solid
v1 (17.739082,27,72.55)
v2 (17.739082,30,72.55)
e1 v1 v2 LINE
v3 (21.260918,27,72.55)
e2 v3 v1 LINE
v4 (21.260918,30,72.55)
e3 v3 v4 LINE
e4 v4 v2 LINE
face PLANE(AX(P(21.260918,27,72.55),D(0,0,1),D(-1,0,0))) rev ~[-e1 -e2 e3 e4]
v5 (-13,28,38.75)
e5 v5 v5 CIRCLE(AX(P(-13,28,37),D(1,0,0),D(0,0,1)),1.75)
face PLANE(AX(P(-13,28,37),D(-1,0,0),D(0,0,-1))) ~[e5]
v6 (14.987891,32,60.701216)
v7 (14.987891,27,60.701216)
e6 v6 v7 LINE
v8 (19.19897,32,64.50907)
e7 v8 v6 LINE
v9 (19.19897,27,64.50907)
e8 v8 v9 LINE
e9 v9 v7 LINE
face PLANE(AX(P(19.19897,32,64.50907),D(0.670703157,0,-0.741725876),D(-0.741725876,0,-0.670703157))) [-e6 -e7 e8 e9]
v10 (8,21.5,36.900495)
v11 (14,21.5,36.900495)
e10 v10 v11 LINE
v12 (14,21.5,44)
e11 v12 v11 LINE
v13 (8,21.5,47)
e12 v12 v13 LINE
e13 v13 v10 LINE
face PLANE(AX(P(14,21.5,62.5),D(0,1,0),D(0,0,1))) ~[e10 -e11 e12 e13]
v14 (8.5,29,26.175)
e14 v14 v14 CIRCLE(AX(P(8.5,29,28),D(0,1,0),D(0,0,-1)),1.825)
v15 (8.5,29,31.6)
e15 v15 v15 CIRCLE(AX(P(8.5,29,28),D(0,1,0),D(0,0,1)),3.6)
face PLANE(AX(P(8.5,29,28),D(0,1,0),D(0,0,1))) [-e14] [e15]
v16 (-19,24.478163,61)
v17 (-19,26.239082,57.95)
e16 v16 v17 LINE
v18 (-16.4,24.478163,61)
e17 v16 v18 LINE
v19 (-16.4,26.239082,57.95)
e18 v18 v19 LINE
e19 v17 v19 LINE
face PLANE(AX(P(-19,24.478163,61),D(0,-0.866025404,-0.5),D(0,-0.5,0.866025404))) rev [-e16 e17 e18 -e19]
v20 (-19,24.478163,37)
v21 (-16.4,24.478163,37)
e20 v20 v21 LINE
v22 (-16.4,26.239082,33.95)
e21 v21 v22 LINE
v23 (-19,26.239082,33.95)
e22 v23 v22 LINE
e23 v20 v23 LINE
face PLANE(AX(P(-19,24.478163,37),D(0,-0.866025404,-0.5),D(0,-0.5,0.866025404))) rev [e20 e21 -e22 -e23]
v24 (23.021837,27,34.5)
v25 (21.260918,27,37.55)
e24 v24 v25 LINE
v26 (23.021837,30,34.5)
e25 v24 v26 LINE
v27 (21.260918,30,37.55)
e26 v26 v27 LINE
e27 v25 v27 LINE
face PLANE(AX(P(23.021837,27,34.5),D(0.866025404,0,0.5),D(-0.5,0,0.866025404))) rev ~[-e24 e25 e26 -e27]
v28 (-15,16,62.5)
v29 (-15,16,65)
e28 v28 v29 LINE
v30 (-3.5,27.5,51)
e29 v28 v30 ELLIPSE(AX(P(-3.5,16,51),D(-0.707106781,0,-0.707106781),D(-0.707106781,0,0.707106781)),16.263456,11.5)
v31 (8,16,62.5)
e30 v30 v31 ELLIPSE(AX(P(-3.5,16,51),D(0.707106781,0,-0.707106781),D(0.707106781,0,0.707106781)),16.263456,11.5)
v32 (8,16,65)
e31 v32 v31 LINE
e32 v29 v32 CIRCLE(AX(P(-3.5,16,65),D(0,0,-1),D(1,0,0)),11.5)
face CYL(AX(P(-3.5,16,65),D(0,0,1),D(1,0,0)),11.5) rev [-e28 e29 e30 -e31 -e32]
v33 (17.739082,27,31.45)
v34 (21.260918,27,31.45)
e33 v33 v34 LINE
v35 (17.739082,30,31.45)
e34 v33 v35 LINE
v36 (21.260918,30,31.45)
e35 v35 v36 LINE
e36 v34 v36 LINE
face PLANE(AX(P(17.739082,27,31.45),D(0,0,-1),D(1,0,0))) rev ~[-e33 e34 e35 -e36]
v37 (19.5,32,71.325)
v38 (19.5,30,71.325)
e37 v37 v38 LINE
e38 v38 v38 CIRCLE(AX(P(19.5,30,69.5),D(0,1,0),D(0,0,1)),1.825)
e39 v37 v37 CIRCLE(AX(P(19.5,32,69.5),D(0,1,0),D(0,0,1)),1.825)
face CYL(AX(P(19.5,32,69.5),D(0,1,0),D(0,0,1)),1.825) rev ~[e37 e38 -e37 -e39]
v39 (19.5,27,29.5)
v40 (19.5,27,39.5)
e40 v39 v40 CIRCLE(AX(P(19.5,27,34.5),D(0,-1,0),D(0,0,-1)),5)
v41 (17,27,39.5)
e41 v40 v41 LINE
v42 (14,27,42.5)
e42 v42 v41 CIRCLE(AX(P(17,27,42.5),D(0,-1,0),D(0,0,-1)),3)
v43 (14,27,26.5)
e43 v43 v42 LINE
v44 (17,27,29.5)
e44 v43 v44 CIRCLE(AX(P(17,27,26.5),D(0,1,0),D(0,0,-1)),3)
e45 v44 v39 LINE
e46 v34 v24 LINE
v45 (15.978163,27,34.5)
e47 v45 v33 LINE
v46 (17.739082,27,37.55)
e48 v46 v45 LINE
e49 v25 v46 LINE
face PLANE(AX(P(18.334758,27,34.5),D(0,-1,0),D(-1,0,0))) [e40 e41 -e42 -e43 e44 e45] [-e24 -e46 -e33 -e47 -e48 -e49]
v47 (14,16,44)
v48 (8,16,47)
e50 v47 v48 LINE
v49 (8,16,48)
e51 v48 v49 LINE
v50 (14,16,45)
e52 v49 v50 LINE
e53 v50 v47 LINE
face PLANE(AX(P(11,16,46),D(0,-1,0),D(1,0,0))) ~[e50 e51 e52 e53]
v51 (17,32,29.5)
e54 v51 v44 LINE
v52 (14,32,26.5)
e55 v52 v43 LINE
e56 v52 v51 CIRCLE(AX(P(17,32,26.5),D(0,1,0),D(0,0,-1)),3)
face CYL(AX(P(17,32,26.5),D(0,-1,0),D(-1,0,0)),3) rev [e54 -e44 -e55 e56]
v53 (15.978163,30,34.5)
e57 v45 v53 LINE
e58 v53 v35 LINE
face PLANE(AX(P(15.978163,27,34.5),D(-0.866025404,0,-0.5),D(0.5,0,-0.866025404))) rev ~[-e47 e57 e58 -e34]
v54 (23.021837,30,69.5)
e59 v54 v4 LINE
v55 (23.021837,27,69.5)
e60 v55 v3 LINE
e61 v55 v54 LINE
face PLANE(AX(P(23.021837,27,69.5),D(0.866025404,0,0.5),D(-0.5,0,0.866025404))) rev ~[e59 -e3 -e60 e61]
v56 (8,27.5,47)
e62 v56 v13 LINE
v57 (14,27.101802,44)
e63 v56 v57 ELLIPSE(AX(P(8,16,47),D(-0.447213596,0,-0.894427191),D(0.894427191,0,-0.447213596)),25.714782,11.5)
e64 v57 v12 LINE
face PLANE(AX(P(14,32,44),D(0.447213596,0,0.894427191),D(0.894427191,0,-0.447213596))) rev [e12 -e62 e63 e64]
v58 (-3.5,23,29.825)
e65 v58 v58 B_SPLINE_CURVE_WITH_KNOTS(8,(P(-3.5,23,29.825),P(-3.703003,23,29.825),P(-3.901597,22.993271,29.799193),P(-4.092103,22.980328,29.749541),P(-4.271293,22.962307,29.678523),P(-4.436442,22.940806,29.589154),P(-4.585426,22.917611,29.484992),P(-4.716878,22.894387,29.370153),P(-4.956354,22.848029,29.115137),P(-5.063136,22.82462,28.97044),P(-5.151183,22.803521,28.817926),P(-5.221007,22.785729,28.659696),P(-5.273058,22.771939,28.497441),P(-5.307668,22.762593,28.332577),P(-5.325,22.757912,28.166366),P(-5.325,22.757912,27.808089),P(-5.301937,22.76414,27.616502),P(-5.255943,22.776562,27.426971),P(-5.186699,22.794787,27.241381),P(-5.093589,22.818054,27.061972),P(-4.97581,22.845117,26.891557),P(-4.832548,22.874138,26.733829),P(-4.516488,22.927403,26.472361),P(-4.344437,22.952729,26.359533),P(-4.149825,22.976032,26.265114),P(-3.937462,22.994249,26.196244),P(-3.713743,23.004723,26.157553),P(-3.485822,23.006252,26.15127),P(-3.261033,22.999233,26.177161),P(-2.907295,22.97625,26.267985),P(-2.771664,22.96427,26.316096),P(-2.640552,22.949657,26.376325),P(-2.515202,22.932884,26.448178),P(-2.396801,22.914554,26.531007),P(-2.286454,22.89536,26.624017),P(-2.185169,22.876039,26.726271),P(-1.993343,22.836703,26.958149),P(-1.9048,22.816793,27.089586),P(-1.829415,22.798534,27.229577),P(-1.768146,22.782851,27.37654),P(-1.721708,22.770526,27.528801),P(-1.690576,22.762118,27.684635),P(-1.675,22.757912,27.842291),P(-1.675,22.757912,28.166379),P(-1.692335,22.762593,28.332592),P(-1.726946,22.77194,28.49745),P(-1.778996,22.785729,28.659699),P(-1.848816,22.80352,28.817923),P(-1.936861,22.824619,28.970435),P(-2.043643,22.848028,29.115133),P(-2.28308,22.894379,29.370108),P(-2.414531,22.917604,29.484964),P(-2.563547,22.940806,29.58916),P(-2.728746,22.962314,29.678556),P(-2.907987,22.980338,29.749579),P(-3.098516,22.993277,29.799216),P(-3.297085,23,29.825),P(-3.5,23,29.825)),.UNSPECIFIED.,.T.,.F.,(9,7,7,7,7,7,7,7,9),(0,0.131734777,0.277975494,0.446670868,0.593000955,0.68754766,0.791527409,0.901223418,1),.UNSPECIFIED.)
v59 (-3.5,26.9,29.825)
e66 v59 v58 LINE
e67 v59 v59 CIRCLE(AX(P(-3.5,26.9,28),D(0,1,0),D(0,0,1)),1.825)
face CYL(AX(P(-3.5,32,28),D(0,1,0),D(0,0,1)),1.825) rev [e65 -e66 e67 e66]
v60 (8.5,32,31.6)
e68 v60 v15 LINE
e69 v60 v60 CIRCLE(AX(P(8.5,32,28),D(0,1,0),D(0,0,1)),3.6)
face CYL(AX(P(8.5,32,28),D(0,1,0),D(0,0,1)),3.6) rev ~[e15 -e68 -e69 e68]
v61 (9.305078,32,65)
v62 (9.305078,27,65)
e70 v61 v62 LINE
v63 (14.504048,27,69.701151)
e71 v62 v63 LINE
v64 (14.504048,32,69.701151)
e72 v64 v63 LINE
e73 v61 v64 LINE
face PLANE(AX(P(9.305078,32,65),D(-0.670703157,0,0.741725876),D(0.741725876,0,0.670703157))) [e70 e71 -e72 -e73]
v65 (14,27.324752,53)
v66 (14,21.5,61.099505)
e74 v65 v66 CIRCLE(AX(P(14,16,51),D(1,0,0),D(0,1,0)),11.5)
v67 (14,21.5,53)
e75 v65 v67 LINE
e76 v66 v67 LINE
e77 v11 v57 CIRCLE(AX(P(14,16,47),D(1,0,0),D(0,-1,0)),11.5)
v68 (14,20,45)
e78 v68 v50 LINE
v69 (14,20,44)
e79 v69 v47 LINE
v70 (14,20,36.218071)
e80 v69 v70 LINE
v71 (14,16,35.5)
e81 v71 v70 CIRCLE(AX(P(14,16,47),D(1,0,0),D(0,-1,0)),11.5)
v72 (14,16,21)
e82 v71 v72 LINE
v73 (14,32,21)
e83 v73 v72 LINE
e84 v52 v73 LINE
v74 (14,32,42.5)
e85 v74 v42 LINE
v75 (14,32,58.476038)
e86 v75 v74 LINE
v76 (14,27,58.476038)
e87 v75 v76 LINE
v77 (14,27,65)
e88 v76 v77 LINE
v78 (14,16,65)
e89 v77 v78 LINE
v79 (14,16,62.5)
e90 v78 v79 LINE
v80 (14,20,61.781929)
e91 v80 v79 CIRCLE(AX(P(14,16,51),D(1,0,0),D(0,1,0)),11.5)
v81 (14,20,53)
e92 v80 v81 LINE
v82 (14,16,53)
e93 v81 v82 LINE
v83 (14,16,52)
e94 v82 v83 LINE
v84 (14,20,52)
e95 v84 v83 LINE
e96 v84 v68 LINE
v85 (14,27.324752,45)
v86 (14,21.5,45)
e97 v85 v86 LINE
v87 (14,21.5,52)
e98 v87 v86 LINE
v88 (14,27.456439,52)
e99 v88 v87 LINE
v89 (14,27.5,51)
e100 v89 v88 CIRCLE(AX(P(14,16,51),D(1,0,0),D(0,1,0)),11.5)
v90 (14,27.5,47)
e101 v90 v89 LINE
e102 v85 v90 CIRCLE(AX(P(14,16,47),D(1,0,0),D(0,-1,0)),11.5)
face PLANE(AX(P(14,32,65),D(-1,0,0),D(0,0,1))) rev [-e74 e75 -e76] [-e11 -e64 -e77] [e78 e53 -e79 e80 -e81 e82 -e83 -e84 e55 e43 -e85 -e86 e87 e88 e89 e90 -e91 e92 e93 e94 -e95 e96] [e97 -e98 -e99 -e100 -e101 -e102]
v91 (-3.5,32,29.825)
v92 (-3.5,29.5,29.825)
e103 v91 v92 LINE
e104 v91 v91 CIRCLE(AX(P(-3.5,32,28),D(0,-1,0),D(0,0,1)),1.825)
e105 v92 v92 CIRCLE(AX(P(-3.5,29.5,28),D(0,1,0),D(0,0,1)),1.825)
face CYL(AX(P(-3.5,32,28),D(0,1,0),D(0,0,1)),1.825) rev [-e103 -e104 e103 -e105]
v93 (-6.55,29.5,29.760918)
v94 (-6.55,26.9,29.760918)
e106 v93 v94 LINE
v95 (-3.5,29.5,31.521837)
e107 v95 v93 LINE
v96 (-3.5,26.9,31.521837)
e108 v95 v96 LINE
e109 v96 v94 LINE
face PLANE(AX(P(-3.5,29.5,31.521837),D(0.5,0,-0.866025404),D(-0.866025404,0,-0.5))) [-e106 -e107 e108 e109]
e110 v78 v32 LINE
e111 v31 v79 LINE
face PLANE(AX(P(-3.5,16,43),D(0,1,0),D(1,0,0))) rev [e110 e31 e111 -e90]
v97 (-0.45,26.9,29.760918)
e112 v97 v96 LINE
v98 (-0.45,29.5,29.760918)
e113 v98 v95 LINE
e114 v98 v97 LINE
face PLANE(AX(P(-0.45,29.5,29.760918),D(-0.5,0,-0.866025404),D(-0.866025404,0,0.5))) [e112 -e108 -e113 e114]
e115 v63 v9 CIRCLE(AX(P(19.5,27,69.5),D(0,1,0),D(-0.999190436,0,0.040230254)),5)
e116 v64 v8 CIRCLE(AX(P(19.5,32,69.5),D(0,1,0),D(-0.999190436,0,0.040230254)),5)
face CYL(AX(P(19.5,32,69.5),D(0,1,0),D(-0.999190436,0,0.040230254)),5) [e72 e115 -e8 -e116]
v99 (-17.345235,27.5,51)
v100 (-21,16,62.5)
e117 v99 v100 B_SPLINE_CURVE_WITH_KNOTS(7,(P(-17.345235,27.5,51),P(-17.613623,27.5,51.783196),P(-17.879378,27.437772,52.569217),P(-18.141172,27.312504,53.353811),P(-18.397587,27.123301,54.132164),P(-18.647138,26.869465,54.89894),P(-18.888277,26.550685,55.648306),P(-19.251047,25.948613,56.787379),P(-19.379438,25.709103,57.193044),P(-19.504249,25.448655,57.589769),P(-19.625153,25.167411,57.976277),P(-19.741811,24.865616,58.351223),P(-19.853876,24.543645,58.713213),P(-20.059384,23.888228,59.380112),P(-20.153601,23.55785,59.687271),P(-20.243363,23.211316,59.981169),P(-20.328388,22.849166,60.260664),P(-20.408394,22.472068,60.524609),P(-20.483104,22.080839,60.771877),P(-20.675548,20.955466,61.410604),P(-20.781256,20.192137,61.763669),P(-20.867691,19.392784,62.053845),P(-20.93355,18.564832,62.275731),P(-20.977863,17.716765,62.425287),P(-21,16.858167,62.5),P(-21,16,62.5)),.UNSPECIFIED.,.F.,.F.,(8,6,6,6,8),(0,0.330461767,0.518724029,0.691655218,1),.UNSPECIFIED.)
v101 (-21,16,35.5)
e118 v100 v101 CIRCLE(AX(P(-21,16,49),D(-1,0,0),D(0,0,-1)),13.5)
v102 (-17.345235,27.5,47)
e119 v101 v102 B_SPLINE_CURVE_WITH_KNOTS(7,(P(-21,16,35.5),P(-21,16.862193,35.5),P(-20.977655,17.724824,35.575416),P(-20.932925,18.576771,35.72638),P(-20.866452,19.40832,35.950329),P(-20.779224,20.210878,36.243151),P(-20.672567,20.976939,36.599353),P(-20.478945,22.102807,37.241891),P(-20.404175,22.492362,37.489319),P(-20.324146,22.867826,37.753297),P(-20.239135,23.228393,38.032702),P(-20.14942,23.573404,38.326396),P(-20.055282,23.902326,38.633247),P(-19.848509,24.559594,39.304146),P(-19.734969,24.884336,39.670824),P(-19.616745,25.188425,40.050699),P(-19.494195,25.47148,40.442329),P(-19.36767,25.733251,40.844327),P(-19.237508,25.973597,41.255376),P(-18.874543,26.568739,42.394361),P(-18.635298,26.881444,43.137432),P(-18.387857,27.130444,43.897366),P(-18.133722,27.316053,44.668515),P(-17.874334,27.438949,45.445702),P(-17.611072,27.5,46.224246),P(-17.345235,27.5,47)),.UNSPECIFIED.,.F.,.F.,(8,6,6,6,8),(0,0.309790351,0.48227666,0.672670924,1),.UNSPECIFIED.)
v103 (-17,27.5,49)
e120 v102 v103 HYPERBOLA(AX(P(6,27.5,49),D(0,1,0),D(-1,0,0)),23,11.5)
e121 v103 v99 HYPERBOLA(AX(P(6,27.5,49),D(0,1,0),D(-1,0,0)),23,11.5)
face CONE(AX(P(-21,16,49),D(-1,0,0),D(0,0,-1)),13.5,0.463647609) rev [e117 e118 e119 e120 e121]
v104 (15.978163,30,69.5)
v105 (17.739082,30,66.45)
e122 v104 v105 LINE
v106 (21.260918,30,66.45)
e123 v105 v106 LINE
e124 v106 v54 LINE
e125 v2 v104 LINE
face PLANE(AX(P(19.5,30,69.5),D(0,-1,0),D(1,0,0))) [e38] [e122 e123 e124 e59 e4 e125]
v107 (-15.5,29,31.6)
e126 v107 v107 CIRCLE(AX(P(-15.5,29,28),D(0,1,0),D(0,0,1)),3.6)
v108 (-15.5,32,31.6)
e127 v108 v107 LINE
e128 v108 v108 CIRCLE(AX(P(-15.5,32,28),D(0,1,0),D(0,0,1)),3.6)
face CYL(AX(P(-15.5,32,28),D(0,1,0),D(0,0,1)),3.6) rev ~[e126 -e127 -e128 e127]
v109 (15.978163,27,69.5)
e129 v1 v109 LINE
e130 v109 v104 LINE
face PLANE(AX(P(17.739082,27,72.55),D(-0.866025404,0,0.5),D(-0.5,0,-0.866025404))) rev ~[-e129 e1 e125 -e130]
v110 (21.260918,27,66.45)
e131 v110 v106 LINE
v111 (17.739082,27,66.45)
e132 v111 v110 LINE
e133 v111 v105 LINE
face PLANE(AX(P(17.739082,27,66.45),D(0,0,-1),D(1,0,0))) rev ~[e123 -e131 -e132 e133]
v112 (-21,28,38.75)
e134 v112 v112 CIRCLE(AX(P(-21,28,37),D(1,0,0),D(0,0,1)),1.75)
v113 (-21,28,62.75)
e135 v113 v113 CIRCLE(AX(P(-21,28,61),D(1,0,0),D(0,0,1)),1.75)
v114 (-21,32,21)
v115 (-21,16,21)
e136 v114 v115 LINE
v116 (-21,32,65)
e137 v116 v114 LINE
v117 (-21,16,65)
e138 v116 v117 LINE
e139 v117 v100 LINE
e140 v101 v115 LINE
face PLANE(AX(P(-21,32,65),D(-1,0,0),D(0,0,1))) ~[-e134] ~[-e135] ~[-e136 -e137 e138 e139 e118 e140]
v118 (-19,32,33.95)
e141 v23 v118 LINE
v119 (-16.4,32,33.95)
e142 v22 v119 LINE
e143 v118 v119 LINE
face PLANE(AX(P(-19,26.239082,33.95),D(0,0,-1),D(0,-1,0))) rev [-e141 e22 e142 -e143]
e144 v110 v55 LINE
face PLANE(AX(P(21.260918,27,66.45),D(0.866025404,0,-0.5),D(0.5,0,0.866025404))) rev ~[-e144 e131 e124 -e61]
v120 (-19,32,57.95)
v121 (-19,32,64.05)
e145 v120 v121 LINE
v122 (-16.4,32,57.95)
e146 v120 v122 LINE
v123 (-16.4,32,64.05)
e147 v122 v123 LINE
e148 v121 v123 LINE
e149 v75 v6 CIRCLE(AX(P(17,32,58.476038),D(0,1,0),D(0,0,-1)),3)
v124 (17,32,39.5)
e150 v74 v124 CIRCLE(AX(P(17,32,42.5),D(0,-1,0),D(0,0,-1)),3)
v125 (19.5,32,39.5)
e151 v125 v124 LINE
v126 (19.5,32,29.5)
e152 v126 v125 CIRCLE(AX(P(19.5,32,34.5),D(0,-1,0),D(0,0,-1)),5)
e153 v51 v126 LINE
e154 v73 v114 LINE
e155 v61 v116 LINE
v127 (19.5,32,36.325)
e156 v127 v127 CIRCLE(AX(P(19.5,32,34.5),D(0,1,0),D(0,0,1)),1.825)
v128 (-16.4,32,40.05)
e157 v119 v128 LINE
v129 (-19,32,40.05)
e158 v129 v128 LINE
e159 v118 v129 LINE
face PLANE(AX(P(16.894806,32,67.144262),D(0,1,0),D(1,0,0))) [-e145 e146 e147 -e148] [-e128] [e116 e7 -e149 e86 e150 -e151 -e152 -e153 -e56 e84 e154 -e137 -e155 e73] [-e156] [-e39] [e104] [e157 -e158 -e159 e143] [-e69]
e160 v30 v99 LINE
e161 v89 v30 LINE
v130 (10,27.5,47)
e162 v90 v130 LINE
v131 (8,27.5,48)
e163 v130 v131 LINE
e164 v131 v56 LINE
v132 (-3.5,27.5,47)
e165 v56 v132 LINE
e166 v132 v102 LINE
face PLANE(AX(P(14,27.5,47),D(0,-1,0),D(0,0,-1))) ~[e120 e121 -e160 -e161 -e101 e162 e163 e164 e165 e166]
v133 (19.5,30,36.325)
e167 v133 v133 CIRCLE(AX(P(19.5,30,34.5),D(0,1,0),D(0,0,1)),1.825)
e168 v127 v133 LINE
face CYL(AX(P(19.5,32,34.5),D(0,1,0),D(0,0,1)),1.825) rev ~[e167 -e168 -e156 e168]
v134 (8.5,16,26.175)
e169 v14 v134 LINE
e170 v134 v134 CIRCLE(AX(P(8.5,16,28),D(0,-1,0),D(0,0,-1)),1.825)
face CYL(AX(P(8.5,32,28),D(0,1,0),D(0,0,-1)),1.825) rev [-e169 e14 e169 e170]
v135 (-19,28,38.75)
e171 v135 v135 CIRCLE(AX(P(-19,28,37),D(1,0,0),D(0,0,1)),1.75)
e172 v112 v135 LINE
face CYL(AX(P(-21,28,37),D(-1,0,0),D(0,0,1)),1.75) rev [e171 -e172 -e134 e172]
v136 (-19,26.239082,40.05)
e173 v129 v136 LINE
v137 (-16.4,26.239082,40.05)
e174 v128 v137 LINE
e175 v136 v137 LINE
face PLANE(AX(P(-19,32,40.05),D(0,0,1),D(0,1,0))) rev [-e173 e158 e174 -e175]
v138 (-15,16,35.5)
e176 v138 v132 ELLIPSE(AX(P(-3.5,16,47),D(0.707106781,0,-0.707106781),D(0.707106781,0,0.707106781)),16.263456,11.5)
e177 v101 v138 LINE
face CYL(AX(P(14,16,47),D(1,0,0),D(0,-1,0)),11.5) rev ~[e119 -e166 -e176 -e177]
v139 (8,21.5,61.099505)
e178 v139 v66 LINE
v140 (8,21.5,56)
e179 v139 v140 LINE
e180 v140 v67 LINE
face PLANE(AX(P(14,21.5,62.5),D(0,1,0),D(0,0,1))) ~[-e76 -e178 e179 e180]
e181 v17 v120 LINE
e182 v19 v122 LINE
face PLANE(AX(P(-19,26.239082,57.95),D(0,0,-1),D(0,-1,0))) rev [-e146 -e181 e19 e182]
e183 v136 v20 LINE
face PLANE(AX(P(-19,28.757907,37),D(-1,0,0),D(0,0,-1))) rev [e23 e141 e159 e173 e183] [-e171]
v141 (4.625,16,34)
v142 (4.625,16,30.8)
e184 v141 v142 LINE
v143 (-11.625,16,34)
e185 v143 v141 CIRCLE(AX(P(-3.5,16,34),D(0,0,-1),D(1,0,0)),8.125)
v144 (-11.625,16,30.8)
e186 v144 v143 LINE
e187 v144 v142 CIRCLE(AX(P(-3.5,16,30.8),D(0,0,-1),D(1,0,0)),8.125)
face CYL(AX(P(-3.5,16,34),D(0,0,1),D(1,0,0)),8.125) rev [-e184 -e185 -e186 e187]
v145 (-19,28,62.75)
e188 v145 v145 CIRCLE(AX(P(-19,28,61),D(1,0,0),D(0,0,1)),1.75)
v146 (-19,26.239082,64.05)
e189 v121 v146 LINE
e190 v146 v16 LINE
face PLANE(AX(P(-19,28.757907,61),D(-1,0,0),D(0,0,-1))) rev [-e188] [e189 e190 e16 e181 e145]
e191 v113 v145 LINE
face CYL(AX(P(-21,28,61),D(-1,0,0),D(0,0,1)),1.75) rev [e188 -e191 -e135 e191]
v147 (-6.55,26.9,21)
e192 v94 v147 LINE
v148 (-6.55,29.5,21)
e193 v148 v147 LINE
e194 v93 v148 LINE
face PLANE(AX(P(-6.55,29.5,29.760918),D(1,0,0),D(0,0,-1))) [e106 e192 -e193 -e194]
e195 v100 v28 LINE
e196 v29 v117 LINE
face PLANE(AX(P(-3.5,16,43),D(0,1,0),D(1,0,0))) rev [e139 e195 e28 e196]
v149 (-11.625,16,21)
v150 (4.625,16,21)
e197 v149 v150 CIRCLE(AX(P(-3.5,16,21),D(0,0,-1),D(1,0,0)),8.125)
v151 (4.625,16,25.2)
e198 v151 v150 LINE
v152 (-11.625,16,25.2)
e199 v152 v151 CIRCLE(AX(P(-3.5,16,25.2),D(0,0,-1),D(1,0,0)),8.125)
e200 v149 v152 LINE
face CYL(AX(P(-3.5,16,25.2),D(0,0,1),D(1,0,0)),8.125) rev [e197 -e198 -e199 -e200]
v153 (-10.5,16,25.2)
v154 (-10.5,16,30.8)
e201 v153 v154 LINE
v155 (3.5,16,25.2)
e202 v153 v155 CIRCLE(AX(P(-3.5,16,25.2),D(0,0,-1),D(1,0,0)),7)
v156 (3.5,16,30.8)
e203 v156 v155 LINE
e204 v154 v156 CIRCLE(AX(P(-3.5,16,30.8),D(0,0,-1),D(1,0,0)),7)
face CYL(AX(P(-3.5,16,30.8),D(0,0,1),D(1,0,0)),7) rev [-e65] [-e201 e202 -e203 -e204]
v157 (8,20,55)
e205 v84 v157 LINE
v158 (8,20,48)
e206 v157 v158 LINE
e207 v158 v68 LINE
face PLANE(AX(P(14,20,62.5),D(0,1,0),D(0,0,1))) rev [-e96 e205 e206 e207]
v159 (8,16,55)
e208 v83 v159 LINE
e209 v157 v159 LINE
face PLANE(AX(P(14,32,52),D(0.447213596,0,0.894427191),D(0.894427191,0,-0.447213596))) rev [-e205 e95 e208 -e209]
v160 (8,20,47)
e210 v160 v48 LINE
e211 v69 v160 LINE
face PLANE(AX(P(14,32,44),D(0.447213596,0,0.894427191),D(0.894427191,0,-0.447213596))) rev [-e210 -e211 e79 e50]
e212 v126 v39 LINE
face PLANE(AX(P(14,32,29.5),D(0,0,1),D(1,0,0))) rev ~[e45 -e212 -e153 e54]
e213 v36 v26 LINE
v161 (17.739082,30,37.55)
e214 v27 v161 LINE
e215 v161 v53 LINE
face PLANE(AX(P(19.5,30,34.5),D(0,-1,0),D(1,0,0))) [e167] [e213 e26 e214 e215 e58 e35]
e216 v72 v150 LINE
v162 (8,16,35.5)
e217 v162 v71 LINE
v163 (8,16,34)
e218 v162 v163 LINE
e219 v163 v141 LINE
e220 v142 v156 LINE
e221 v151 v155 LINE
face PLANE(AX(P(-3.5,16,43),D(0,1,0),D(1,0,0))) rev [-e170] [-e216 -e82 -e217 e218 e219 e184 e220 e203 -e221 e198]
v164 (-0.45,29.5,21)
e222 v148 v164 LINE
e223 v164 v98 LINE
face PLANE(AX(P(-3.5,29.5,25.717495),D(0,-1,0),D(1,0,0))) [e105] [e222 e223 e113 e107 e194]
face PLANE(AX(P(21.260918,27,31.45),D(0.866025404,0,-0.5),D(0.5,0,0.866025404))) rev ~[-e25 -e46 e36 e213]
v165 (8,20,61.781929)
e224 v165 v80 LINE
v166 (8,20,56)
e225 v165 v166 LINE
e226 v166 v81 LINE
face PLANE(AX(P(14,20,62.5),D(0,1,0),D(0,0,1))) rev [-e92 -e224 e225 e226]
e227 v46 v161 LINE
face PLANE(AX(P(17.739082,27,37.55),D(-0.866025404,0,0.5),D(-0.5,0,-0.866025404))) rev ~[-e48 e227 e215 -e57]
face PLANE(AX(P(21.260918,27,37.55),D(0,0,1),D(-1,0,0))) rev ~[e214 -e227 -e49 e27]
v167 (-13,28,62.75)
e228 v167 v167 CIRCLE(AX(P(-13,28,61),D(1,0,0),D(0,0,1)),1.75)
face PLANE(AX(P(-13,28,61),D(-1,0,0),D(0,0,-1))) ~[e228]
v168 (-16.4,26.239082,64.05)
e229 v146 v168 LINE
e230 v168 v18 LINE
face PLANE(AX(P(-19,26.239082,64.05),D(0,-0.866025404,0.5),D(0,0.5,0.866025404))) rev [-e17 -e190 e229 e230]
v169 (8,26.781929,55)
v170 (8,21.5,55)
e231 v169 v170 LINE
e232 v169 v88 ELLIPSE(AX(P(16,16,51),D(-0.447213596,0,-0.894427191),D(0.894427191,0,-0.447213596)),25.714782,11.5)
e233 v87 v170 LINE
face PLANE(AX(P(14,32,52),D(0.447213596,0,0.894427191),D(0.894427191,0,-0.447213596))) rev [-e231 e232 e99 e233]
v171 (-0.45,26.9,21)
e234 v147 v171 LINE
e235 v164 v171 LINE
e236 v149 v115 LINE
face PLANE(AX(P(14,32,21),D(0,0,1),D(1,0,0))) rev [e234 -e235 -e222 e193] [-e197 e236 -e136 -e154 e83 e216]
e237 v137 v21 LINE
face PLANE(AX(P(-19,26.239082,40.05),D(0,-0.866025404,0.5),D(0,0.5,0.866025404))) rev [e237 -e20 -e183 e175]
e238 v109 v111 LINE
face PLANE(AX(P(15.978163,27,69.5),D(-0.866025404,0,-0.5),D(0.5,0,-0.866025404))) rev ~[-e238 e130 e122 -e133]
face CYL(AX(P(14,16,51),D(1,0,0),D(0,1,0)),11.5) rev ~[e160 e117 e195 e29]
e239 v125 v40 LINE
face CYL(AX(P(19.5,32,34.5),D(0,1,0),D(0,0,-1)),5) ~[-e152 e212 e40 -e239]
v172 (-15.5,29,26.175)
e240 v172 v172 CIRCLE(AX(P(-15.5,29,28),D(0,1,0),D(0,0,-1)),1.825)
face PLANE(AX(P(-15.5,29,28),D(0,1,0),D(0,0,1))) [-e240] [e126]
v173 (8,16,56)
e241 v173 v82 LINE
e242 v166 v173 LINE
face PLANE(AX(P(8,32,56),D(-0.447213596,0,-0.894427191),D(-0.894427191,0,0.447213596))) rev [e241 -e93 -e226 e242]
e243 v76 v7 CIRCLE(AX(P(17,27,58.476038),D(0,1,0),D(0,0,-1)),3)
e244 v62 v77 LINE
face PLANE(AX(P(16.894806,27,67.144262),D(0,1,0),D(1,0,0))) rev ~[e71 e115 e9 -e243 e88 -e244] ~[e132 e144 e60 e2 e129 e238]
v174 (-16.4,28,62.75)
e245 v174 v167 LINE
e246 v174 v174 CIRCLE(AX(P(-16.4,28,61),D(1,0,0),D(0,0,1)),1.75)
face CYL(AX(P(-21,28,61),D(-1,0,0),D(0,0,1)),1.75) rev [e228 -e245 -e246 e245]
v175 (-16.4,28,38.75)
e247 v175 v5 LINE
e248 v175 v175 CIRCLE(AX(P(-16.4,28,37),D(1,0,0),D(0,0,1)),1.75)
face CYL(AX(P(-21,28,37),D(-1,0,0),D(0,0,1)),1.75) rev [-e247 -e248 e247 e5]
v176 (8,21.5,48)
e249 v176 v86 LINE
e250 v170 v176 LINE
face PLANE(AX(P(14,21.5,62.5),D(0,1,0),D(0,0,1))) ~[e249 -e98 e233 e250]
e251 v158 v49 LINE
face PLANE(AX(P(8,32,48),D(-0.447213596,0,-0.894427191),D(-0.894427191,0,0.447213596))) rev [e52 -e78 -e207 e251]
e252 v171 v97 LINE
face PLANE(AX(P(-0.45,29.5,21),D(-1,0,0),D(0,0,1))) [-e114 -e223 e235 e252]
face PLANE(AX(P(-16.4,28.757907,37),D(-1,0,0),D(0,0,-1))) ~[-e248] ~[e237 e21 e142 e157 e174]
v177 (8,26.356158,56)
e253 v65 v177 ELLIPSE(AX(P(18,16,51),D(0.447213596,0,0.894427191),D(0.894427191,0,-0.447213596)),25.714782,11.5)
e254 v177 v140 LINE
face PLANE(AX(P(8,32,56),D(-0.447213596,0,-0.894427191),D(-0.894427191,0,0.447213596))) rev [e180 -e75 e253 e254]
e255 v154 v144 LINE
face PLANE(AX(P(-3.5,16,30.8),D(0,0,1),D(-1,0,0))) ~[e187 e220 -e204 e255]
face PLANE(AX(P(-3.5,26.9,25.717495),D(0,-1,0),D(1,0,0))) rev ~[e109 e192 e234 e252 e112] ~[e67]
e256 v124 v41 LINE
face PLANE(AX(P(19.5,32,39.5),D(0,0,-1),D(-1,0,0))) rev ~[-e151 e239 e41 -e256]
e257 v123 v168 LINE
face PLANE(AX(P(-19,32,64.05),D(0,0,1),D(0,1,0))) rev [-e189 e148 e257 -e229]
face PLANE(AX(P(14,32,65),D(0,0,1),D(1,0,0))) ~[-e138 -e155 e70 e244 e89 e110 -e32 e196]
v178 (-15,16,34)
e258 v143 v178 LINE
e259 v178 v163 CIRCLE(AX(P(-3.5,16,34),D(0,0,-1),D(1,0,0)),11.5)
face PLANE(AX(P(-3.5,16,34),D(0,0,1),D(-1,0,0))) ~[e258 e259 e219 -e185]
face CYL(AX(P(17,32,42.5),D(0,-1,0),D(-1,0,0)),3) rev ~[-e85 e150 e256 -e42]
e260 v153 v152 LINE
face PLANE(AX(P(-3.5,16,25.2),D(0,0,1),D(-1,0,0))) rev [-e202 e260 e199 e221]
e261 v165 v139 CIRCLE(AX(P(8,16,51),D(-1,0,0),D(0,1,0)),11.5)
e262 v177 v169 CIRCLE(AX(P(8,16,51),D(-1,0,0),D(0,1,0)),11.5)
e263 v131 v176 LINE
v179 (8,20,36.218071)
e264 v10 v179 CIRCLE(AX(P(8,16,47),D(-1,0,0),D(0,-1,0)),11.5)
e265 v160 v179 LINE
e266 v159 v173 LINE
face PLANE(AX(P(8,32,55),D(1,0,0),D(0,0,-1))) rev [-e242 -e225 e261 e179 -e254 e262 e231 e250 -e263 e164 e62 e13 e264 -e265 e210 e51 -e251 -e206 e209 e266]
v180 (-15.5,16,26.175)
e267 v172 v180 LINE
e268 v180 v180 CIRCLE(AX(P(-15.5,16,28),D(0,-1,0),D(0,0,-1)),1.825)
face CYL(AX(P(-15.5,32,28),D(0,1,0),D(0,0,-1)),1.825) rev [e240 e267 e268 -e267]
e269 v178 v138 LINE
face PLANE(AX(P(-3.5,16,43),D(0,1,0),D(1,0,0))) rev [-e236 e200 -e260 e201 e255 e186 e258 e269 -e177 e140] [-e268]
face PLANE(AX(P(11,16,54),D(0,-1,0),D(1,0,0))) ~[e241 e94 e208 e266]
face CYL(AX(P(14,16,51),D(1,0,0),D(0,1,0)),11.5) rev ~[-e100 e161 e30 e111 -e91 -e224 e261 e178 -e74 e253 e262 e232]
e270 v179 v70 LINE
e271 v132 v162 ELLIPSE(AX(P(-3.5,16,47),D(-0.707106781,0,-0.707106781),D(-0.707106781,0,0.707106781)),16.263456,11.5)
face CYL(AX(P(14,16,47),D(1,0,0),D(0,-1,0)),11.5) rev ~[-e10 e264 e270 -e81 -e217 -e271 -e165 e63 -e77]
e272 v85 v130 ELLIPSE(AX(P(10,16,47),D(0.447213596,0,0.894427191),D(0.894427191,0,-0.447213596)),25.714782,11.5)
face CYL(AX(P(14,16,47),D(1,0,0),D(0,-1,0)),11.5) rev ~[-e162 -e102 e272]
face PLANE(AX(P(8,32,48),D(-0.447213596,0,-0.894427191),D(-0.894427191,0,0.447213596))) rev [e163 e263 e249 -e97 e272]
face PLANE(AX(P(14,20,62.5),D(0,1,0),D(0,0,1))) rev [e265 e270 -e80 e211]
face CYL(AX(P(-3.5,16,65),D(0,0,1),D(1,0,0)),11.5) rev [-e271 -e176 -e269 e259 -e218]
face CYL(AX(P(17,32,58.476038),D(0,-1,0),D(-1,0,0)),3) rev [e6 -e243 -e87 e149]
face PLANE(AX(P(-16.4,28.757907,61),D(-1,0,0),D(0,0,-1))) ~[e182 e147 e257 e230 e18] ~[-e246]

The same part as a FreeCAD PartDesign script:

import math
import FreeCAD as App
import Part
import Sketcher

V = App.Vector
Q = App.Units.Quantity


def edges_at(feature, points):
    """Names of the edges that pass closest to the given points."""
    edges = feature.Shape.Edges
    near = lambda p: min(range(len(edges)), key=lambda i: edges[i].distToShape(Part.Vertex(*p))[0])
    return sorted({f"Edge{near(p) + 1}" for p in points})

doc = App.newDocument("Part")
body = doc.addObject("PartDesign::Body", "Body")

# Sketch on XZ plane
sketch1 = body.newObject("Sketcher::SketchObject", "Sketch")
sketch1.AttachmentSupport = (doc.getObject("XZ_Plane"), [""])
sketch1.MapMode = "FlatFace"
sketch1.addGeometry([
    Part.LineSegment(V(14, 21, 0), V(14, 65, 0)),
    Part.LineSegment(V(14, 65, 0), V(-21, 65, 0)),
    Part.LineSegment(V(-21, 65, 0), V(-21, 21, 0)),
    Part.LineSegment(V(-21, 21, 0), V(14, 21, 0)),
], False)
sketch1.addConstraint([
    Sketcher.Constraint("Coincident", 0, 2, 1, 1),
    Sketcher.Constraint("Coincident", 1, 2, 2, 1),
    Sketcher.Constraint("Coincident", 2, 2, 3, 1),
    Sketcher.Constraint("Coincident", 3, 2, 0, 1),
    Sketcher.Constraint("Vertical", 0),
    Sketcher.Constraint("Horizontal", 1),
    Sketcher.Constraint("Vertical", 2),
    Sketcher.Constraint("Horizontal", 3),
    Sketcher.Constraint("DistanceX", 1, 2, 1, 1, Q("35 mm")),
    Sketcher.Constraint("DistanceY", 0, 1, 0, 2, Q("44 mm")),
    Sketcher.Constraint("DistanceX", -1, 1, 0, 2, Q("14 mm")),
    Sketcher.Constraint("DistanceY", -1, 1, 0, 2, Q("65 mm")),
])
pad1 = body.newObject("PartDesign::Pad", "Pad")
pad1.Profile = sketch1
pad1.Length = 16
pad1.Reversed = True

# Sketch on XY plane
sketch2 = body.newObject("Sketcher::SketchObject", "Sketch001")
sketch2.AttachmentSupport = (doc.getObject("XY_Plane"), [""])
sketch2.MapMode = "FlatFace"
sketch2.AttachmentOffset = App.Placement(V(0, 0, 65), App.Rotation())
sketch2.addGeometry(Part.Circle(V(-4, 16, 0), V(0, 0, 1), 12), False)
sketch2.addConstraint([
    Sketcher.Constraint("Diameter", 0, Q("23 mm")),
    Sketcher.Constraint("DistanceY", -1, 1, 0, 3, Q("16 mm")),
    Sketcher.Constraint("DistanceX", 0, 3, -1, 1, Q("3.5 mm")),
])
pocket1 = body.newObject("PartDesign::Pocket", "Pocket")
pocket1.Profile = sketch2
pocket1.Length = 31

# Sketch on YZ plane
sketch3 = body.newObject("Sketcher::SketchObject", "Sketch002")
sketch3.AttachmentSupport = (doc.getObject("YZ_Plane"), [""])
sketch3.MapMode = "FlatFace"
sketch3.AttachmentOffset = App.Placement(V(0, 0, 14), App.Rotation())
sketch3.addGeometry([
    Part.LineSegment(V(27.5, 47, 0), V(27.5, 51, 0)),
    Part.ArcOfCircle(Part.Circle(V(16, 51, 0), V(0, 0, 1), 11.5), math.radians(0), math.radians(180)),
    Part.LineSegment(V(4.5, 51, 0), V(4.5, 47, 0)),
    Part.ArcOfCircle(Part.Circle(V(16, 47, 0), V(0, 0, 1), 11.5), math.radians(180), math.radians(360)),
], False)
sketch3.addConstraint([
    Sketcher.Constraint("Tangent", 0, 2, 1, 1),
    Sketcher.Constraint("Tangent", 1, 2, 2, 1),
    Sketcher.Constraint("Tangent", 2, 2, 3, 1),
    Sketcher.Constraint("Tangent", 3, 2, 0, 1),
    Sketcher.Constraint("Vertical", 0),
    Sketcher.Constraint("Vertical", 2),
    Sketcher.Constraint("Radius", 1, Q("11.5 mm")),
    Sketcher.Constraint("DistanceY", 0, 1, 0, 2, Q("4 mm")),
    Sketcher.Constraint("DistanceX", -1, 1, 1, 3, Q("16 mm")),
    Sketcher.Constraint("DistanceY", -1, 1, 1, 3, Q("51 mm")),
])
pocket2 = body.newObject("PartDesign::Pocket", "Pocket001")
pocket2.Profile = sketch3
pocket2.Type = "ThroughAll"

# Sketch on YZ plane
sketch4 = body.newObject("Sketcher::SketchObject", "Sketch003")
sketch4.AttachmentSupport = (doc.getObject("YZ_Plane"), [""])
sketch4.MapMode = "FlatFace"
sketch4.AttachmentOffset = App.Placement(V(0, 0, 14), App.Rotation())
sketch4.addGeometry([
    Part.LineSegment(V(12, 62.5, 0), V(10.5, 62.5, 0)),
    Part.LineSegment(V(10.5, 62.5, 0), V(10.5, 35.5, 0)),
    Part.LineSegment(V(10.5, 35.5, 0), V(12, 35.5, 0)),
    Part.LineSegment(V(12, 35.5, 0), V(12, 62.5, 0)),
], False)
sketch4.addConstraint([
    Sketcher.Constraint("Coincident", 0, 2, 1, 1),
    Sketcher.Constraint("Coincident", 1, 2, 2, 1),
    Sketcher.Constraint("Coincident", 2, 2, 3, 1),
    Sketcher.Constraint("Coincident", 3, 2, 0, 1),
    Sketcher.Constraint("Horizontal", 0),
    Sketcher.Constraint("Vertical", 1),
    Sketcher.Constraint("Horizontal", 2),
    Sketcher.Constraint("Vertical", 3),
    Sketcher.Constraint("DistanceY", 1, 2, 1, 1, Q("27 mm")),
    Sketcher.Constraint("DistanceX", 0, 2, 0, 1, Q("1.5 mm")),
    Sketcher.Constraint("DistanceX", -1, 1, 2, 2, Q("12 mm")),
    Sketcher.Constraint("DistanceY", -1, 1, 0, 2, Q("62.5 mm")),
])
pad2 = body.newObject("PartDesign::Pad", "Pad001")
pad2.Profile = sketch4
pad2.Length = 6
pad2.Reversed = True

# Sketch on XZ plane
sketch5 = body.newObject("Sketcher::SketchObject", "Sketch004")
sketch5.AttachmentSupport = (doc.getObject("XZ_Plane"), [""])
sketch5.MapMode = "FlatFace"
sketch5.addGeometry([
    Part.LineSegment(V(14, 53, 0), V(8, 56, 0)),  # 0
    Part.LineSegment(V(8, 56, 0), V(8, 55, 0)),  # 1
    Part.LineSegment(V(8, 55, 0), V(14, 52, 0)),  # 2
    Part.LineSegment(V(14, 52, 0), V(14, 53, 0)),  # 3
    Part.LineSegment(V(8, 47, 0), V(14, 44, 0)),  # 4
    Part.LineSegment(V(14, 44, 0), V(14, 45, 0)),  # 5
    Part.LineSegment(V(14, 45, 0), V(8, 48, 0)),  # 6
    Part.LineSegment(V(8, 48, 0), V(8, 47, 0)),  # 7
], False)
sketch5.addConstraint([
    Sketcher.Constraint("Coincident", 0, 2, 1, 1),
    Sketcher.Constraint("Coincident", 1, 2, 2, 1),
    Sketcher.Constraint("Coincident", 2, 2, 3, 1),
    Sketcher.Constraint("Coincident", 3, 2, 0, 1),
    Sketcher.Constraint("Coincident", 4, 2, 5, 1),
    Sketcher.Constraint("Coincident", 5, 2, 6, 1),
    Sketcher.Constraint("Coincident", 6, 2, 7, 1),
    Sketcher.Constraint("Coincident", 7, 2, 4, 1),
    Sketcher.Constraint("Vertical", 1),
    Sketcher.Constraint("Vertical", 3),
    Sketcher.Constraint("Vertical", 5),
    Sketcher.Constraint("Vertical", 7),
    Sketcher.Constraint("Parallel", 0, 2),
    Sketcher.Constraint("Parallel", 2, 4),
    Sketcher.Constraint("Parallel", 4, 6),
    Sketcher.Constraint("Vertical", 3, 2, 4, 2),
    Sketcher.Constraint("Vertical", 1, 2, 6, 2),
    Sketcher.Constraint("Equal", 3, 5),
    Sketcher.Constraint("DistanceY", 1, 2, 1, 1, Q("1 mm")),
    Sketcher.Constraint("DistanceX", -1, 1, 0, 2, Q("8 mm")),
    Sketcher.Constraint("DistanceY", -1, 1, 0, 2, Q("56 mm")),
    Sketcher.Constraint("DistanceX", -1, 1, 2, 2, Q("14 mm")),
    Sketcher.Constraint("DistanceY", -1, 1, 2, 2, Q("52 mm")),
    Sketcher.Constraint("DistanceY", -1, 1, 4, 2, Q("44 mm")),
])
pad3 = body.newObject("PartDesign::Pad", "Pad002")
pad3.Profile = sketch5
pad3.Length = 16
pad3.Reversed = True

# Sketch on YZ plane
sketch6 = body.newObject("Sketcher::SketchObject", "Sketch005")
sketch6.AttachmentSupport = (doc.getObject("YZ_Plane"), [""])
sketch6.MapMode = "FlatFace"
sketch6.AttachmentOffset = App.Placement(V(0, 0, -21), App.Rotation())
sketch6.addGeometry(Part.Circle(V(16, 49, 0), V(0, 0, 1), 14), False)
sketch6.addConstraint([
    Sketcher.Constraint("Diameter", 0, Q("27 mm")),
    Sketcher.Constraint("DistanceX", -1, 1, 0, 3, Q("16 mm")),
    Sketcher.Constraint("DistanceY", -1, 1, 0, 3, Q("49 mm")),
])

# Sketch on YZ plane
sketch7 = body.newObject("Sketcher::SketchObject", "Sketch006")
sketch7.AttachmentSupport = (doc.getObject("YZ_Plane"), [""])
sketch7.MapMode = "FlatFace"
sketch7.AttachmentOffset = App.Placement(V(0, 0, -17), App.Rotation())
sketch7.addGeometry(Part.Circle(V(16, 49, 0), V(0, 0, 1), 12), False)
sketch7.addConstraint([
    Sketcher.Constraint("Diameter", 0, Q("23 mm")),
    Sketcher.Constraint("DistanceX", -1, 1, 0, 3, Q("16 mm")),
    Sketcher.Constraint("DistanceY", -1, 1, 0, 3, Q("49 mm")),
])

subtractiveloft = body.newObject("PartDesign::SubtractiveLoft", "SubtractiveLoft")
subtractiveloft.Profile = sketch6
subtractiveloft.Sections = [sketch7]

# Sketch on XY plane
sketch8 = body.newObject("Sketcher::SketchObject", "Sketch007")
sketch8.AttachmentSupport = (doc.getObject("XY_Plane"), [""])
sketch8.MapMode = "FlatFace"
sketch8.AttachmentOffset = App.Placement(V(0, 0, 34), App.Rotation())
sketch8.addGeometry(Part.Circle(V(-4, 16, 0), V(0, 0, 1), 8), False)
sketch8.addConstraint([
    Sketcher.Constraint("Diameter", 0, Q("16.25 mm")),
    Sketcher.Constraint("DistanceY", -1, 1, 0, 3, Q("16 mm")),
    Sketcher.Constraint("DistanceX", 0, 3, -1, 1, Q("3.5 mm")),
])
pocket3 = body.newObject("PartDesign::Pocket", "Pocket002")
pocket3.Profile = sketch8
pocket3.Length = 3.2

# Sketch on XY plane
sketch9 = body.newObject("Sketcher::SketchObject", "Sketch008")
sketch9.AttachmentSupport = (doc.getObject("XY_Plane"), [""])
sketch9.MapMode = "FlatFace"
sketch9.AttachmentOffset = App.Placement(V(0, 0, 30.8), App.Rotation())
sketch9.addGeometry(Part.Circle(V(-4, 16, 0), V(0, 0, 1), 7), False)
sketch9.addConstraint([
    Sketcher.Constraint("Diameter", 0, Q("14 mm")),
    Sketcher.Constraint("DistanceY", -1, 1, 0, 3, Q("16 mm")),
    Sketcher.Constraint("DistanceX", 0, 3, -1, 1, Q("3.5 mm")),
])
pocket4 = body.newObject("PartDesign::Pocket", "Pocket003")
pocket4.Profile = sketch9
pocket4.Length = 5.6

# Sketch on XY plane
sketch10 = body.newObject("Sketcher::SketchObject", "Sketch009")
sketch10.AttachmentSupport = (doc.getObject("XY_Plane"), [""])
sketch10.MapMode = "FlatFace"
sketch10.AttachmentOffset = App.Placement(V(0, 0, 25.2), App.Rotation())
sketch10.addGeometry(Part.Circle(V(-4, 16, 0), V(0, 0, 1), 8), False)
sketch10.addConstraint([
    Sketcher.Constraint("Diameter", 0, Q("16.25 mm")),
    Sketcher.Constraint("DistanceY", -1, 1, 0, 3, Q("16 mm")),
    Sketcher.Constraint("DistanceX", 0, 3, -1, 1, Q("3.5 mm")),
])
pocket5 = body.newObject("PartDesign::Pocket", "Pocket004")
pocket5.Profile = sketch10
pocket5.Length = 4.2

# Sketch on XZ plane
sketch11 = body.newObject("Sketcher::SketchObject", "Sketch010")
sketch11.AttachmentSupport = (doc.getObject("XZ_Plane"), [""])
sketch11.MapMode = "FlatFace"
sketch11.addGeometry([
    Part.Circle(V(-15.5, 28, 0), V(0, 0, 1), 1.8),
    Part.Circle(V(8.5, 28, 0), V(0, 0, 1), 1.8),
], False)
sketch11.addConstraint([
    Sketcher.Constraint("Equal", 0, 1),
    Sketcher.Constraint("Horizontal", 0, 3, 1, 3),
    Sketcher.Constraint("Diameter", 0, Q("3.65 mm")),
    Sketcher.Constraint("DistanceY", -1, 1, 0, 3, Q("28 mm")),
    Sketcher.Constraint("DistanceX", 0, 3, 1, 3, Q("24 mm")),
    Sketcher.Constraint("DistanceX", 0, 3, -1, 1, Q("15.5 mm")),
])
pocket6 = body.newObject("PartDesign::Pocket", "Pocket005")
pocket6.Profile = sketch11
pocket6.Type = "ThroughAll"

# Sketch on YZ plane
sketch12 = body.newObject("Sketcher::SketchObject", "Sketch011")
sketch12.AttachmentSupport = (doc.getObject("YZ_Plane"), [""])
sketch12.MapMode = "FlatFace"
sketch12.AttachmentOffset = App.Placement(V(0, 0, -21), App.Rotation())
sketch12.addGeometry([
    Part.Circle(V(4, 61, 0), V(0, 0, 1), 1.8),
    Part.Circle(V(4, 37, 0), V(0, 0, 1), 1.8),
], False)
sketch12.addConstraint([
    Sketcher.Constraint("Equal", 0, 1),
    Sketcher.Constraint("Vertical", 0, 3, 1, 3),
    Sketcher.Constraint("Diameter", 0, Q("3.5 mm")),
    Sketcher.Constraint("DistanceX", -1, 1, 0, 3, Q("4 mm")),
    Sketcher.Constraint("DistanceY", -1, 1, 0, 3, Q("61 mm")),
    Sketcher.Constraint("DistanceY", -1, 1, 1, 3, Q("37 mm")),
])
pocket7 = body.newObject("PartDesign::Pocket", "Pocket006")
pocket7.Profile = sketch12
pocket7.Length = 8
pocket7.Reversed = True

# Sketch on YZ plane
sketch13 = body.newObject("Sketcher::SketchObject", "Sketch012")
sketch13.AttachmentSupport = (doc.getObject("YZ_Plane"), [""])
sketch13.MapMode = "FlatFace"
sketch13.AttachmentOffset = App.Placement(V(0, 0, -19), App.Rotation())
sketch13.addGeometry([
    Part.LineSegment(V(0, 33.9, 0), V(0, 40, 0)),  # 0
    Part.LineSegment(V(0, 40, 0), V(5.8, 40, 0)),  # 1
    Part.LineSegment(V(5.8, 40, 0), V(7.5, 37, 0)),  # 2
    Part.LineSegment(V(7.5, 37, 0), V(5.8, 33.9, 0)),  # 3
    Part.LineSegment(V(5.8, 33.9, 0), V(0, 33.9, 0)),  # 4
    Part.LineSegment(V(0, 64, 0), V(5.8, 64, 0)),  # 5
    Part.LineSegment(V(5.8, 64, 0), V(7.5, 61, 0)),  # 6
    Part.LineSegment(V(7.5, 61, 0), V(5.8, 57.9, 0)),  # 7
    Part.LineSegment(V(5.8, 57.9, 0), V(0, 57.9, 0)),  # 8
    Part.LineSegment(V(0, 57.9, 0), V(0, 64, 0)),  # 9
], False)
sketch13.addConstraint([
    Sketcher.Constraint("Coincident", 0, 2, 1, 1),
    Sketcher.Constraint("Coincident", 1, 2, 2, 1),
    Sketcher.Constraint("Coincident", 2, 2, 3, 1),
    Sketcher.Constraint("Coincident", 3, 2, 4, 1),
    Sketcher.Constraint("Coincident", 4, 2, 0, 1),
    Sketcher.Constraint("Coincident", 5, 2, 6, 1),
    Sketcher.Constraint("Coincident", 6, 2, 7, 1),
    Sketcher.Constraint("Coincident", 7, 2, 8, 1),
    Sketcher.Constraint("Coincident", 8, 2, 9, 1),
    Sketcher.Constraint("Coincident", 9, 2, 5, 1),
    Sketcher.Constraint("Vertical", 0),
    Sketcher.Constraint("Horizontal", 1),
    Sketcher.Constraint("Horizontal", 4),
    Sketcher.Constraint("Horizontal", 5),
    Sketcher.Constraint("Horizontal", 8),
    Sketcher.Constraint("Vertical", 9),
    Sketcher.Constraint("PointOnObject", 0, 2, -2),
    Sketcher.Constraint("PointOnObject", 8, 2, -2),
    Sketcher.Constraint("Parallel", 2, 6),
    Sketcher.Constraint("Parallel", 3, 7),
    Sketcher.Constraint("Vertical", 1, 2, 3, 2),
    Sketcher.Constraint("Vertical", 3, 2, 5, 2),
    Sketcher.Constraint("Vertical", 2, 2, 6, 2),
    Sketcher.Constraint("Vertical", 5, 2, 7, 2),
    Sketcher.Constraint("Equal", 2, 3),
    Sketcher.Constraint("Angle", 2, Q("-60 deg")),
    Sketcher.Constraint("DistanceY", 0, 1, 0, 2, Q("6.1 mm")),
    Sketcher.Constraint("DistanceY", -1, 1, 2, 2, Q("37 mm")),
    Sketcher.Constraint("DistanceY", -1, 1, 6, 2, Q("61 mm")),
    Sketcher.Constraint("DistanceX", 1, 1, 1, 2, Q("5.760918 mm")),
])
pocket8 = body.newObject("PartDesign::Pocket", "Pocket007")
pocket8.Profile = sketch13
pocket8.Length = 2.6
pocket8.Reversed = True
body2 = doc.addObject("PartDesign::Body", "Body001")
doc.recompute()

mirroring = doc.addObject("Part::Mirroring", "Mirroring")
mirroring.Source = body
mirroring.Base = V(0, 16, 0)
mirroring.Normal = V(0, 1, 0)
body2.BaseFeature = mirroring
doc.recompute()

# Sketch on XZ plane
sketch14 = body2.newObject("Sketcher::SketchObject", "Sketch013")
sketch14.AttachmentSupport = (doc.getObject("XZ_Plane001"), [""])
sketch14.MapMode = "FlatFace"
sketch14.AttachmentOffset = App.Placement(V(0, 0, -32), App.Rotation())
sketch14.addGeometry(Part.Circle(V(-3.5, 28, 0), V(0, 0, 1), 1.8), False)
sketch14.addConstraint([
    Sketcher.Constraint("Diameter", 0, Q("3.65 mm")),
    Sketcher.Constraint("DistanceY", -1, 1, 0, 3, Q("28 mm")),
    Sketcher.Constraint("DistanceX", 0, 3, -1, 1, Q("3.5 mm")),
])
pocket9 = body2.newObject("PartDesign::Pocket", "Pocket008")
pocket9.Profile = sketch14
pocket9.Length = 20
pocket9.Reversed = True

# Sketch on XZ plane
sketch15 = body2.newObject("Sketcher::SketchObject", "Sketch014")
sketch15.AttachmentSupport = (doc.getObject("XZ_Plane001"), [""])
sketch15.MapMode = "FlatFace"
sketch15.AttachmentOffset = App.Placement(V(0, 0, -29.5), App.Rotation())
sketch15.addGeometry([
    Part.LineSegment(V(-6.5, 21, 0), V(-0.5, 21, 0)),  # 0
    Part.LineSegment(V(-0.5, 21, 0), V(-0.5, 29.8, 0)),  # 1
    Part.LineSegment(V(-0.5, 29.8, 0), V(-3.5, 31.5, 0)),  # 2
    Part.LineSegment(V(-3.5, 31.5, 0), V(-6.5, 29.8, 0)),  # 3
    Part.LineSegment(V(-6.5, 29.8, 0), V(-6.5, 21, 0)),  # 4
], False)
sketch15.addConstraint([
    Sketcher.Constraint("Coincident", 0, 2, 1, 1),
    Sketcher.Constraint("Coincident", 1, 2, 2, 1),
    Sketcher.Constraint("Coincident", 2, 2, 3, 1),
    Sketcher.Constraint("Coincident", 3, 2, 4, 1),
    Sketcher.Constraint("Coincident", 4, 2, 0, 1),
    Sketcher.Constraint("Horizontal", 0),
    Sketcher.Constraint("Vertical", 1),
    Sketcher.Constraint("Vertical", 4),
    Sketcher.Constraint("Horizontal", 1, 2, 3, 2),
    Sketcher.Constraint("Equal", 2, 3),
    Sketcher.Constraint("Angle", 2, Q("150 deg")),
    Sketcher.Constraint("DistanceX", 0, 1, 0, 2, Q("6.1 mm")),
    Sketcher.Constraint("DistanceY", -1, 1, 0, 2, Q("21 mm")),
    Sketcher.Constraint("DistanceX", 2, 2, -1, 1, Q("3.5 mm")),
    Sketcher.Constraint("DistanceY", 1, 1, 1, 2, Q("8.760918 mm")),
])
pocket10 = body2.newObject("PartDesign::Pocket", "Pocket009")
pocket10.Profile = sketch15
pocket10.Length = 2.6
pocket10.Reversed = True

# Sketch on XZ plane
sketch16 = body2.newObject("Sketcher::SketchObject", "Sketch015")
sketch16.AttachmentSupport = (doc.getObject("XZ_Plane001"), [""])
sketch16.MapMode = "FlatFace"
sketch16.AttachmentOffset = App.Placement(V(0, 0, -32), App.Rotation())
sketch16.addGeometry([
    Part.LineSegment(V(9.3, 65, 0), V(14.5, 69.7, 0)),  # 0
    Part.ArcOfCircle(Part.Circle(V(19.5, 69.5, 0), V(0, 0, 1), 5), math.radians(-93), math.radians(178)),  # 1
    Part.LineSegment(V(19.2, 64.5, 0), V(14, 59.8, 0)),  # 2
    Part.LineSegment(V(14, 59.8, 0), V(9.3, 65, 0)),  # 3
    Part.Circle(V(19.5, 69.5, 0), V(0, 0, 1), 1.8),  # 4
    Part.LineSegment(V(14, 29.5, 0), V(14, 39.5, 0)),  # 5
    Part.LineSegment(V(14, 39.5, 0), V(19.5, 39.5, 0)),  # 6
    Part.ArcOfCircle(Part.Circle(V(19.5, 34.5, 0), V(0, 0, 1), 5), math.radians(-90), math.radians(90)),  # 7
    Part.LineSegment(V(19.5, 29.5, 0), V(14, 29.5, 0)),  # 8
    Part.Circle(V(19.5, 34.5, 0), V(0, 0, 1), 1.8),  # 9
], False)
sketch16.addConstraint([
    Sketcher.Constraint("Coincident", 0, 2, 1, 2),
    Sketcher.Constraint("Coincident", 1, 1, 2, 1),
    Sketcher.Constraint("Coincident", 2, 2, 3, 1),
    Sketcher.Constraint("Coincident", 3, 2, 0, 1),
    Sketcher.Constraint("Coincident", 5, 2, 6, 1),
    Sketcher.Constraint("Tangent", 6, 2, 7, 2),
    Sketcher.Constraint("Tangent", 7, 1, 8, 1),
    Sketcher.Constraint("Coincident", 8, 2, 5, 1),
    Sketcher.Constraint("Vertical", 5),
    Sketcher.Constraint("Horizontal", 6),
    Sketcher.Constraint("Horizontal", 8),
    Sketcher.Constraint("Coincident", 4, 3, 1, 3),
    Sketcher.Constraint("Coincident", 9, 3, 7, 3),
    Sketcher.Constraint("Equal", 1, 7),
    Sketcher.Constraint("Equal", 4, 9),
    Sketcher.Constraint("Parallel", 0, 2),
    Sketcher.Constraint("Perpendicular", 2, 3),
    Sketcher.Constraint("Vertical", 4, 3, 7, 3),
    Sketcher.Constraint("Vertical", 2, 2, 5, 2),
    Sketcher.Constraint("Equal", 0, 2),
    Sketcher.Constraint("Radius", 1, Q("5 mm")),
    Sketcher.Constraint("Diameter", 4, Q("3.65 mm")),
    Sketcher.Constraint("Distance", 3, Q("7 mm")),
    Sketcher.Constraint("DistanceX", 6, 1, 6, 2, Q("5.5 mm")),
    Sketcher.Constraint("DistanceX", -1, 1, 2, 2, Q("14 mm")),
    Sketcher.Constraint("DistanceY", -1, 1, 3, 2, Q("65 mm")),
    Sketcher.Constraint("DistanceY", 7, 3, 1, 3, Q("35 mm")),
    Sketcher.Constraint("DistanceY", -1, 1, 1, 3, Q("69.5 mm")),
])
pad4 = body2.newObject("PartDesign::Pad", "Pad003")
pad4.Profile = sketch16
pad4.Length = 5

# Sketch on XZ plane
sketch17 = body2.newObject("Sketcher::SketchObject", "Sketch016")
sketch17.AttachmentSupport = (doc.getObject("XZ_Plane001"), [""])
sketch17.MapMode = "FlatFace"
sketch17.AttachmentOffset = App.Placement(V(0, 0, -27), App.Rotation())
sketch17.addGeometry([
    Part.LineSegment(V(17.7, 31.4, 0), V(21.3, 31.4, 0)),  # 0
    Part.LineSegment(V(21.3, 31.4, 0), V(23, 34.5, 0)),  # 1
    Part.LineSegment(V(23, 34.5, 0), V(21.3, 37.5, 0)),  # 2
    Part.LineSegment(V(21.3, 37.5, 0), V(17.7, 37.5, 0)),  # 3
    Part.LineSegment(V(17.7, 37.5, 0), V(16, 34.5, 0)),  # 4
    Part.LineSegment(V(16, 34.5, 0), V(17.7, 31.4, 0)),  # 5
    Part.LineSegment(V(23, 69.5, 0), V(21.3, 72.5, 0)),  # 6
    Part.LineSegment(V(21.3, 72.5, 0), V(17.7, 72.5, 0)),  # 7
    Part.LineSegment(V(17.7, 72.5, 0), V(16, 69.5, 0)),  # 8
    Part.LineSegment(V(16, 69.5, 0), V(17.7, 66.5, 0)),  # 9
    Part.LineSegment(V(17.7, 66.5, 0), V(21.3, 66.5, 0)),  # 10
    Part.LineSegment(V(21.3, 66.5, 0), V(23, 69.5, 0)),  # 11
], False)
sketch17.addConstraint([
    Sketcher.Constraint("Coincident", 0, 2, 1, 1),
    Sketcher.Constraint("Coincident", 1, 2, 2, 1),
    Sketcher.Constraint("Coincident", 2, 2, 3, 1),
    Sketcher.Constraint("Coincident", 3, 2, 4, 1),
    Sketcher.Constraint("Coincident", 4, 2, 5, 1),
    Sketcher.Constraint("Coincident", 5, 2, 0, 1),
    Sketcher.Constraint("Coincident", 6, 2, 7, 1),
    Sketcher.Constraint("Coincident", 7, 2, 8, 1),
    Sketcher.Constraint("Coincident", 8, 2, 9, 1),
    Sketcher.Constraint("Coincident", 9, 2, 10, 1),
    Sketcher.Constraint("Coincident", 10, 2, 11, 1),
    Sketcher.Constraint("Coincident", 11, 2, 6, 1),
    Sketcher.Constraint("Horizontal", 0),
    Sketcher.Constraint("Horizontal", 3),
    Sketcher.Constraint("Horizontal", 7),
    Sketcher.Constraint("Horizontal", 10),
    Sketcher.Constraint("Parallel", 1, 4),
    Sketcher.Constraint("Parallel", 2, 5),
    Sketcher.Constraint("Parallel", 5, 6),
    Sketcher.Constraint("Parallel", 4, 8),
    Sketcher.Constraint("Parallel", 6, 9),
    Sketcher.Constraint("Parallel", 8, 11),
    Sketcher.Constraint("Horizontal", 1, 2, 4, 2),
    Sketcher.Constraint("Horizontal", 8, 2, 11, 2),
    Sketcher.Constraint("Vertical", 0, 2, 2, 2),
    Sketcher.Constraint("Vertical", 3, 2, 5, 2),
    Sketcher.Constraint("Vertical", 2, 2, 6, 2),
    Sketcher.Constraint("Vertical", 5, 2, 7, 2),
    Sketcher.Constraint("Vertical", 4, 2, 8, 2),
    Sketcher.Constraint("Vertical", 7, 2, 9, 2),
    Sketcher.Constraint("Angle", 1, Q("60 deg")),
    Sketcher.Constraint("DistanceY", 2, 2, 6, 2, Q("35 mm")),
    Sketcher.Constraint("DistanceY", -1, 1, 1, 2, Q("34.5 mm")),
    Sketcher.Constraint("DistanceY", 0, 2, 2, 2, Q("6.1 mm")),
    Sketcher.Constraint("DistanceX", 0, 1, 0, 2, Q("3.521837 mm")),
    Sketcher.Constraint("DistanceX", -1, 1, 0, 2, Q("21.260918 mm")),
])
pocket11 = body2.newObject("PartDesign::Pocket", "Pocket010")
pocket11.Profile = sketch17
pocket11.Length = 3

# Sketch on XZ plane
sketch18 = body2.newObject("Sketcher::SketchObject", "Sketch017")
sketch18.AttachmentSupport = (doc.getObject("XZ_Plane001"), [""])
sketch18.MapMode = "FlatFace"
sketch18.AttachmentOffset = App.Placement(V(0, 0, -32), App.Rotation())
sketch18.addGeometry([
    Part.Circle(V(-15.5, 28, 0), V(0, 0, 1), 3.6),
    Part.Circle(V(8.5, 28, 0), V(0, 0, 1), 3.6),
], False)
sketch18.addConstraint([
    Sketcher.Constraint("Equal", 0, 1),
    Sketcher.Constraint("Horizontal", 0, 3, 1, 3),
    Sketcher.Constraint("Diameter", 0, Q("7.2 mm")),
    Sketcher.Constraint("DistanceY", -1, 1, 0, 3, Q("28 mm")),
    Sketcher.Constraint("DistanceX", 0, 3, 1, 3, Q("24 mm")),
    Sketcher.Constraint("DistanceX", 0, 3, -1, 1, Q("15.5 mm")),
])
pocket12 = body2.newObject("PartDesign::Pocket", "Pocket011")
pocket12.Profile = sketch18
pocket12.Length = 3
pocket12.Reversed = True
doc.recompute()

fillet = body2.newObject("PartDesign::Fillet", "Fillet")
fillet.Base = (pocket12, edges_at(pocket12, [(14, 29.5, 59.808), (14, 29.5, 29.5), (14, 29.5, 39.5)]))
fillet.Radius = 3
body.Visibility = False
mirroring.Visibility = False

doc.recompute()
